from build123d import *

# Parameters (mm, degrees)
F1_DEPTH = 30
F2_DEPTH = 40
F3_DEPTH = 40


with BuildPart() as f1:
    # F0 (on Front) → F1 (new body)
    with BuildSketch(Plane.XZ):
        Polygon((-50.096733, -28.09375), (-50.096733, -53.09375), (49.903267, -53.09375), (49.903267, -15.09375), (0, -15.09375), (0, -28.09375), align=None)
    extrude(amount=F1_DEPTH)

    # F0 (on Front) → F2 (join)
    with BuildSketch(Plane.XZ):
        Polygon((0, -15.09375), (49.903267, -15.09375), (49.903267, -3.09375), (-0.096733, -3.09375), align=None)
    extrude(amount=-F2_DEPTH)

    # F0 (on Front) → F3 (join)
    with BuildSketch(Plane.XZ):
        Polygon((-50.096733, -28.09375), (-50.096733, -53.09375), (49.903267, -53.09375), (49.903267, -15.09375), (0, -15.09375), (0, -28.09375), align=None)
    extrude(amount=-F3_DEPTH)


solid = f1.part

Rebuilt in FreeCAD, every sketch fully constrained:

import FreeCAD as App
import Part
import Sketcher

V = App.Vector

doc = App.newDocument("Part")
body = doc.addObject("PartDesign::Body", "Body")
body.AllowCompound = True

sketch1 = body.newObject("Sketcher::SketchObject", "Sketch")
sketch1.AttachmentSupport = (doc.getObject("XZ_Plane"), [""])
sketch1.MapMode = "FlatFace"
sketch1.addGeometry(Part.LineSegment(V(-50, -28, 0), V(-50, -53, 0)), False)
sketch1.addGeometry(Part.LineSegment(V(-50, -53, 0), V(50, -53, 0)), False)
sketch1.addGeometry(Part.LineSegment(V(50, -53, 0), V(50, -15, 0)), False)
sketch1.addGeometry(Part.LineSegment(V(50, -15, 0), V(0, -15, 0)), False)
sketch1.addGeometry(Part.LineSegment(V(0, -15, 0), V(0, -28, 0)), False)
sketch1.addGeometry(Part.LineSegment(V(0, -28, 0), V(-50, -28, 0)), False)
sketch1.addConstraint(Sketcher.Constraint("Coincident", 0, 2, 1, 1))
sketch1.addConstraint(Sketcher.Constraint("Coincident", 1, 2, 2, 1))
sketch1.addConstraint(Sketcher.Constraint("Coincident", 2, 2, 3, 1))
sketch1.addConstraint(Sketcher.Constraint("Coincident", 3, 2, 4, 1))
sketch1.addConstraint(Sketcher.Constraint("Coincident", 4, 2, 5, 1))
sketch1.addConstraint(Sketcher.Constraint("Coincident", 5, 2, 0, 1))
sketch1.addConstraint(Sketcher.Constraint("Vertical", 0))
sketch1.addConstraint(Sketcher.Constraint("Horizontal", 1))
sketch1.addConstraint(Sketcher.Constraint("Vertical", 2))
sketch1.addConstraint(Sketcher.Constraint("Horizontal", 3))
sketch1.addConstraint(Sketcher.Constraint("Vertical", 4))
sketch1.addConstraint(Sketcher.Constraint("Horizontal", 5))
sketch1.addConstraint(Sketcher.Constraint("PointOnObject", 3, 2, -2))
sketch1.addConstraint(Sketcher.Constraint("DistanceX", 1, 1, 1, 2, 100.0))
sketch1.addConstraint(Sketcher.Constraint("DistanceY", 0, 2, 0, 1, 25.0))
sketch1.addConstraint(Sketcher.Constraint("DistanceY", 2, 1, 2, 2, 38.0))
sketch1.addConstraint(Sketcher.Constraint("DistanceX", 3, 2, 3, 1, 49.903267))
sketch1.addConstraint(Sketcher.Constraint("DistanceY", 0, 2, -1, 1, 53.09375))
pad1 = body.newObject("PartDesign::Pad", "Pad")
pad1.Profile = sketch1
pad1.Length = 30

sketch2 = body.newObject("Sketcher::SketchObject", "Sketch001")
sketch2.AttachmentSupport = (doc.getObject("XZ_Plane"), [""])
sketch2.MapMode = "FlatFace"
sketch2.addGeometry(Part.LineSegment(V(0, -15.09375, 0), V(49.903267, -15.09375, 0)), False)
sketch2.addGeometry(Part.LineSegment(V(49.903267, -15.09375, 0), V(49.903267, -3.09375, 0)), False)
sketch2.addGeometry(Part.LineSegment(V(49.903267, -3.09375, 0), V(-0.096733, -3.09375, 0)), False)
sketch2.addGeometry(Part.LineSegment(V(-0.096733, -3.09375, 0), V(0, -15.09375, 0)), False)
sketch2.addConstraint(Sketcher.Constraint("Coincident", 0, 2, 1, 1))
sketch2.addConstraint(Sketcher.Constraint("Coincident", 1, 2, 2, 1))
sketch2.addConstraint(Sketcher.Constraint("Coincident", 2, 2, 3, 1))
sketch2.addConstraint(Sketcher.Constraint("Coincident", 3, 2, 0, 1))
sketch2.addConstraint(Sketcher.Constraint("Horizontal", 0))
sketch2.addConstraint(Sketcher.Constraint("Vertical", 1))
sketch2.addConstraint(Sketcher.Constraint("Horizontal", 2))
sketch2.addConstraint(Sketcher.Constraint("PointOnObject", 3, 2, -2))
sketch2.addConstraint(Sketcher.Constraint("DistanceX", 2, 2, 2, 1, 50.0))
sketch2.addConstraint(Sketcher.Constraint("DistanceY", 1, 1, 1, 2, 12.0))
sketch2.addConstraint(Sketcher.Constraint("Distance", 3, 12.00039))
sketch2.addConstraint(Sketcher.Constraint("DistanceY", 0, 2, -1, 1, 15.09375))
pad2 = body.newObject("PartDesign::Pad", "Pad001")
pad2.Profile = sketch2
pad2.Length = 40
pad2.Reversed = True

sketch3 = body.newObject("Sketcher::SketchObject", "Sketch002")
sketch3.AttachmentSupport = (doc.getObject("XZ_Plane"), [""])
sketch3.MapMode = "FlatFace"
sketch3.addGeometry(Part.LineSegment(V(-50, -28, 0), V(-50, -53, 0)), False)
sketch3.addGeometry(Part.LineSegment(V(-50, -53, 0), V(50, -53, 0)), False)
sketch3.addGeometry(Part.LineSegment(V(50, -53, 0), V(50, -15, 0)), False)
sketch3.addGeometry(Part.LineSegment(V(50, -15, 0), V(0, -15, 0)), False)
sketch3.addGeometry(Part.LineSegment(V(0, -15, 0), V(0, -28, 0)), False)
sketch3.addGeometry(Part.LineSegment(V(0, -28, 0), V(-50, -28, 0)), False)
sketch3.addConstraint(Sketcher.Constraint("Coincident", 0, 2, 1, 1))
sketch3.addConstraint(Sketcher.Constraint("Coincident", 1, 2, 2, 1))
sketch3.addConstraint(Sketcher.Constraint("Coincident", 2, 2, 3, 1))
sketch3.addConstraint(Sketcher.Constraint("Coincident", 3, 2, 4, 1))
sketch3.addConstraint(Sketcher.Constraint("Coincident", 4, 2, 5, 1))
sketch3.addConstraint(Sketcher.Constraint("Coincident", 5, 2, 0, 1))
sketch3.addConstraint(Sketcher.Constraint("Vertical", 0))
sketch3.addConstraint(Sketcher.Constraint("Horizontal", 1))
sketch3.addConstraint(Sketcher.Constraint("Vertical", 2))
sketch3.addConstraint(Sketcher.Constraint("Horizontal", 3))
sketch3.addConstraint(Sketcher.Constraint("Vertical", 4))
sketch3.addConstraint(Sketcher.Constraint("Horizontal", 5))
sketch3.addConstraint(Sketcher.Constraint("PointOnObject", 3, 2, -2))
sketch3.addConstraint(Sketcher.Constraint("DistanceX", 1, 1, 1, 2, 100.0))
sketch3.addConstraint(Sketcher.Constraint("DistanceY", 0, 2, 0, 1, 25.0))
sketch3.addConstraint(Sketcher.Constraint("DistanceY", 2, 1, 2, 2, 38.0))
sketch3.addConstraint(Sketcher.Constraint("DistanceX", 3, 2, 3, 1, 49.903267))
sketch3.addConstraint(Sketcher.Constraint("DistanceY", 0, 2, -1, 1, 53.09375))
pad3 = body.newObject("PartDesign::Pad", "Pad002")
pad3.Profile = sketch3
pad3.Length = 40
pad3.Reversed = True

doc.recompute()
